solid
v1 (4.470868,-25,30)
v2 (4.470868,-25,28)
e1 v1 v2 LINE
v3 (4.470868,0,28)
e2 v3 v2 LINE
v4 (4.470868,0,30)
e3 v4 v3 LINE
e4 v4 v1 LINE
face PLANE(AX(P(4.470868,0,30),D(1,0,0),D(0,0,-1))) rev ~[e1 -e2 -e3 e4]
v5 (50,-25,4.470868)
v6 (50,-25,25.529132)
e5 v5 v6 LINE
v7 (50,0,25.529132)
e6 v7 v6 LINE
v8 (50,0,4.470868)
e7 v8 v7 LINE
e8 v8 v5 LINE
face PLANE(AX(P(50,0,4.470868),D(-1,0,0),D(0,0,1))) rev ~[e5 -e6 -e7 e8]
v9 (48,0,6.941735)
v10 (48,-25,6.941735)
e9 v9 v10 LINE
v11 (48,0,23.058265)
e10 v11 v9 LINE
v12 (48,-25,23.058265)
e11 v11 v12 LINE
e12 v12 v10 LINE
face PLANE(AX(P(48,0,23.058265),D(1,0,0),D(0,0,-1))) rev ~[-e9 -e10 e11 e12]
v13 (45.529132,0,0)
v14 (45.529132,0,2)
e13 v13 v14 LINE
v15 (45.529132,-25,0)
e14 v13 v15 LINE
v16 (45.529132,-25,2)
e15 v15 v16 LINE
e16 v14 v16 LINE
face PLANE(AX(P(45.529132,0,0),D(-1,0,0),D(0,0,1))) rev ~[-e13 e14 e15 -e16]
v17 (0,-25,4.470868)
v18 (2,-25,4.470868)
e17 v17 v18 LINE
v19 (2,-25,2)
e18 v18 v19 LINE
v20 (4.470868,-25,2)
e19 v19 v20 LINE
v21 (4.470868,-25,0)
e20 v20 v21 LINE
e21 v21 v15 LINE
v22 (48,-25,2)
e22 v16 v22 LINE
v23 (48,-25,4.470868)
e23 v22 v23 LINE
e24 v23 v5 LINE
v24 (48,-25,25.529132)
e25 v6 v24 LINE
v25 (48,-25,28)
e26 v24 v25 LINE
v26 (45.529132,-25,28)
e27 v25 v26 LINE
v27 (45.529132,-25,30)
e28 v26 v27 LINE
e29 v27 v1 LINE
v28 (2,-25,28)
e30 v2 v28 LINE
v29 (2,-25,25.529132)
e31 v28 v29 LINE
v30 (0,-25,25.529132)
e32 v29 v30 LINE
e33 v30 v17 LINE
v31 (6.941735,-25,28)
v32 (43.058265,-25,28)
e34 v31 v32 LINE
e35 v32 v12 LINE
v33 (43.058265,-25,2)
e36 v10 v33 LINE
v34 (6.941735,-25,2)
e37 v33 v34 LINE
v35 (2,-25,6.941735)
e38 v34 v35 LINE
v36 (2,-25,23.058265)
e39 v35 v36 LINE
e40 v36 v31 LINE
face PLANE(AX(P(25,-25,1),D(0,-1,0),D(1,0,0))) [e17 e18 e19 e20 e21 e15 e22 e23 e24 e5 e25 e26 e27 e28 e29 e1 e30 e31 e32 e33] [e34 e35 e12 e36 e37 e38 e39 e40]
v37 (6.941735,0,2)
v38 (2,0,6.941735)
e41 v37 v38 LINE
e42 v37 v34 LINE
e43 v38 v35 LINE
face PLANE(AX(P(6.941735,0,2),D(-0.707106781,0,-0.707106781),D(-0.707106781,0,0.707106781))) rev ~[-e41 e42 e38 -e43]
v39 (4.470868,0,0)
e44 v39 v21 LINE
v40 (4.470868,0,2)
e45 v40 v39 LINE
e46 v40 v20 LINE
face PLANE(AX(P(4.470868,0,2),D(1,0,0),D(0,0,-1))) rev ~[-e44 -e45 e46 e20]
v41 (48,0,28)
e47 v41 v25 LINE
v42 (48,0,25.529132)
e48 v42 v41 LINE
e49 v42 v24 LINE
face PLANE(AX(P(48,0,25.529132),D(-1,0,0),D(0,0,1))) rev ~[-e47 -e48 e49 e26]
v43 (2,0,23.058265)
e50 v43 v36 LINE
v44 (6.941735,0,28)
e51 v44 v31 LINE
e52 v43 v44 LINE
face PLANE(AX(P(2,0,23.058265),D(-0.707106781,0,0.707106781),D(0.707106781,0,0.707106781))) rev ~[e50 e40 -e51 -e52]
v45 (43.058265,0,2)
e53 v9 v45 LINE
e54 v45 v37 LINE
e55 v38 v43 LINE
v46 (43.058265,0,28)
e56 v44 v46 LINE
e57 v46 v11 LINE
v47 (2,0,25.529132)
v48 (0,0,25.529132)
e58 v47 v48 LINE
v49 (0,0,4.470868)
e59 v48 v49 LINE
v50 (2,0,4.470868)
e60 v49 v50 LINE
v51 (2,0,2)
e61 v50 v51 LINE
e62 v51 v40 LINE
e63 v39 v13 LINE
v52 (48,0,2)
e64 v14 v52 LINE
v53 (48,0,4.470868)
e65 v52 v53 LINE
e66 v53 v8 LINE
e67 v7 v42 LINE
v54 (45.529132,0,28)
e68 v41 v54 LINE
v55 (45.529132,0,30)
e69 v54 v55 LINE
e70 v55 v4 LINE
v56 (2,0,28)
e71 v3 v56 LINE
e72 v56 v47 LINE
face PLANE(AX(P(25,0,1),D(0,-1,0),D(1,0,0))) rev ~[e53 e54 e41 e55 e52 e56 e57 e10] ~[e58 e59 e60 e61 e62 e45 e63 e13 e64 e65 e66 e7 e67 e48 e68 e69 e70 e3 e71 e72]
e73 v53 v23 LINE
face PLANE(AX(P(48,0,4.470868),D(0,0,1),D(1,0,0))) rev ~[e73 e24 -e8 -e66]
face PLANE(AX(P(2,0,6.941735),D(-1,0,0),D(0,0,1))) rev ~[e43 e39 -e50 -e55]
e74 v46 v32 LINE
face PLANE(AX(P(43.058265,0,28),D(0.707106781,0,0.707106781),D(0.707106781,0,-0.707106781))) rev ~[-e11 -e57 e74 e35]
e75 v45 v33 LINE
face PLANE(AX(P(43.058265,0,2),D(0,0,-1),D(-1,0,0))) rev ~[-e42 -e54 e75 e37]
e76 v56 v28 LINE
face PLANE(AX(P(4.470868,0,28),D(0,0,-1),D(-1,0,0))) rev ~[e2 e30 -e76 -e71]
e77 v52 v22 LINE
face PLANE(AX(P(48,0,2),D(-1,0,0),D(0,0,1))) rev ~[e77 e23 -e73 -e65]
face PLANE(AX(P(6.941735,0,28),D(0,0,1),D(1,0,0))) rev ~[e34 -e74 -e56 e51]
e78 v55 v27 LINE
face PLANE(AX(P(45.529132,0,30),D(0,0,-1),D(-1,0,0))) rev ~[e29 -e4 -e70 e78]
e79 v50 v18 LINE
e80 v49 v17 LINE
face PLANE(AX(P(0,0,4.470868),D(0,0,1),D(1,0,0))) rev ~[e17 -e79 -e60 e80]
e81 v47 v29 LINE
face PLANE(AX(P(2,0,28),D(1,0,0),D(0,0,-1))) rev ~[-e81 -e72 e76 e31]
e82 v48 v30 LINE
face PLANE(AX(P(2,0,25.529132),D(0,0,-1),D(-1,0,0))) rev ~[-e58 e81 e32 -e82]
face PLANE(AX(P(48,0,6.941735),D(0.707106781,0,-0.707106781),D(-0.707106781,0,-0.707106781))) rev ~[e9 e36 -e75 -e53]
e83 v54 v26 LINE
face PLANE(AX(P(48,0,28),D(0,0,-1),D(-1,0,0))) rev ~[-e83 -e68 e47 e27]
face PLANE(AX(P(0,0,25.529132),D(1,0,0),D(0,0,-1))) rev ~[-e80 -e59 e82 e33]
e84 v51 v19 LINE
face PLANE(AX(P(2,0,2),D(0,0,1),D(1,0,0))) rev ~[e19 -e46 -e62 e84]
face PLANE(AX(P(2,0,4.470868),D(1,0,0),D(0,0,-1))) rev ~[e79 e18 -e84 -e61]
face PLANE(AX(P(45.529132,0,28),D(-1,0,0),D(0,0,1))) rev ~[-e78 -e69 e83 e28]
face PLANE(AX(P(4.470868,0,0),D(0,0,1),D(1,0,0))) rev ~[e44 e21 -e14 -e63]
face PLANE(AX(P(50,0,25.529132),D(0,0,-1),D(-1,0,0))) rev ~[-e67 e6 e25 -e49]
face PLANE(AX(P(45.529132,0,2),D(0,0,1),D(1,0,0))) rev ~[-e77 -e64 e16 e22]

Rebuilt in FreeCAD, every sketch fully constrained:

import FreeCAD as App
import Part
import Sketcher

doc = App.newDocument("Part")
body = doc.addObject("PartDesign::Body", "Body")

sketch1 = body.newObject("Sketcher::SketchObject", "Sketch")
sketch1.AttachmentSupport = (doc.getObject("XZ_Plane"), [""])
sketch1.MapMode = "FlatFace"
sketch1.addGeometry([
    Part.LineSegment(App.Vector(4.5, 2, 0), App.Vector(4.5, 0, 0)),
    Part.LineSegment(App.Vector(4.5, 0, 0), App.Vector(45.5, 0, 0)),
    Part.LineSegment(App.Vector(45.5, 0, 0), App.Vector(45.5, 2, 0)),
    Part.LineSegment(App.Vector(45.5, 2, 0), App.Vector(48, 2, 0)),
    Part.LineSegment(App.Vector(48, 2, 0), App.Vector(48, 4.5, 0)),
    Part.LineSegment(App.Vector(48, 4.5, 0), App.Vector(50, 4.5, 0)),
    Part.LineSegment(App.Vector(50, 4.5, 0), App.Vector(50, 25.5, 0)),
    Part.LineSegment(App.Vector(50, 25.5, 0), App.Vector(48, 25.5, 0)),
    Part.LineSegment(App.Vector(48, 25.5, 0), App.Vector(48, 28, 0)),
    Part.LineSegment(App.Vector(48, 28, 0), App.Vector(45.5, 28, 0)),
    Part.LineSegment(App.Vector(45.5, 28, 0), App.Vector(45.5, 30, 0)),
    Part.LineSegment(App.Vector(45.5, 30, 0), App.Vector(4.5, 30, 0)),
    Part.LineSegment(App.Vector(4.5, 30, 0), App.Vector(4.5, 28, 0)),
    Part.LineSegment(App.Vector(4.5, 28, 0), App.Vector(2, 28, 0)),
    Part.LineSegment(App.Vector(2, 28, 0), App.Vector(2, 25.5, 0)),
    Part.LineSegment(App.Vector(2, 25.5, 0), App.Vector(0, 25.5, 0)),
    Part.LineSegment(App.Vector(0, 25.5, 0), App.Vector(0, 4.5, 0)),
    Part.LineSegment(App.Vector(0, 4.5, 0), App.Vector(2, 4.5, 0)),
    Part.LineSegment(App.Vector(2, 4.5, 0), App.Vector(2, 2, 0)),
    Part.LineSegment(App.Vector(2, 2, 0), App.Vector(4.5, 2, 0)),
    Part.LineSegment(App.Vector(43.1, 28, 0), App.Vector(48, 23.1, 0)),
    Part.LineSegment(App.Vector(48, 23.1, 0), App.Vector(48, 6.9, 0)),
    Part.LineSegment(App.Vector(48, 6.9, 0), App.Vector(43.1, 2, 0)),
    Part.LineSegment(App.Vector(43.1, 2, 0), App.Vector(6.9, 2, 0)),
    Part.LineSegment(App.Vector(6.9, 2, 0), App.Vector(2, 6.9, 0)),
    Part.LineSegment(App.Vector(2, 6.9, 0), App.Vector(2, 23.1, 0)),
    Part.LineSegment(App.Vector(2, 23.1, 0), App.Vector(6.9, 28, 0)),
    Part.LineSegment(App.Vector(6.9, 28, 0), App.Vector(43.1, 28, 0)),
], False)
sketch1.addConstraint([
    Sketcher.Constraint("Coincident", 0, 2, 1, 1),
    Sketcher.Constraint("Coincident", 1, 2, 2, 1),
    Sketcher.Constraint("Coincident", 2, 2, 3, 1),
    Sketcher.Constraint("Coincident", 3, 2, 4, 1),
    Sketcher.Constraint("Coincident", 4, 2, 5, 1),
    Sketcher.Constraint("Coincident", 5, 2, 6, 1),
    Sketcher.Constraint("Coincident", 6, 2, 7, 1),
    Sketcher.Constraint("Coincident", 7, 2, 8, 1),
    Sketcher.Constraint("Coincident", 8, 2, 9, 1),
    Sketcher.Constraint("Coincident", 9, 2, 10, 1),
    Sketcher.Constraint("Coincident", 10, 2, 11, 1),
    Sketcher.Constraint("Coincident", 11, 2, 12, 1),
    Sketcher.Constraint("Coincident", 12, 2, 13, 1),
    Sketcher.Constraint("Coincident", 13, 2, 14, 1),
    Sketcher.Constraint("Coincident", 14, 2, 15, 1),
    Sketcher.Constraint("Coincident", 15, 2, 16, 1),
    Sketcher.Constraint("Coincident", 16, 2, 17, 1),
    Sketcher.Constraint("Coincident", 17, 2, 18, 1),
    Sketcher.Constraint("Coincident", 18, 2, 19, 1),
    Sketcher.Constraint("Coincident", 19, 2, 0, 1),
    Sketcher.Constraint("Coincident", 20, 2, 21, 1),
    Sketcher.Constraint("Coincident", 21, 2, 22, 1),
    Sketcher.Constraint("Coincident", 22, 2, 23, 1),
    Sketcher.Constraint("Coincident", 23, 2, 24, 1),
    Sketcher.Constraint("Coincident", 24, 2, 25, 1),
    Sketcher.Constraint("Coincident", 25, 2, 26, 1),
    Sketcher.Constraint("Coincident", 26, 2, 27, 1),
    Sketcher.Constraint("Coincident", 27, 2, 20, 1),
    Sketcher.Constraint("Vertical", 0),
    Sketcher.Constraint("Horizontal", 1),
    Sketcher.Constraint("Vertical", 2),
    Sketcher.Constraint("Horizontal", 3),
    Sketcher.Constraint("Vertical", 4),
    Sketcher.Constraint("Horizontal", 5),
    Sketcher.Constraint("Vertical", 6),
    Sketcher.Constraint("Horizontal", 7),
    Sketcher.Constraint("Vertical", 8),
    Sketcher.Constraint("Horizontal", 9),
    Sketcher.Constraint("Vertical", 10),
    Sketcher.Constraint("Horizontal", 11),
    Sketcher.Constraint("Vertical", 12),
    Sketcher.Constraint("Horizontal", 13),
    Sketcher.Constraint("Vertical", 14),
    Sketcher.Constraint("Horizontal", 15),
    Sketcher.Constraint("Vertical", 16),
    Sketcher.Constraint("Horizontal", 17),
    Sketcher.Constraint("Vertical", 18),
    Sketcher.Constraint("Horizontal", 19),
    Sketcher.Constraint("Vertical", 21),
    Sketcher.Constraint("Horizontal", 23),
    Sketcher.Constraint("Vertical", 25),
    Sketcher.Constraint("Horizontal", 27),
    Sketcher.Constraint("PointOnObject", 0, 2, -1),
    Sketcher.Constraint("PointOnObject", 15, 2, -2),
    Sketcher.Constraint("Perpendicular", 20, 22),
    Sketcher.Constraint("Perpendicular", 22, 24),
    Sketcher.Constraint("Perpendicular", 24, 26),
    Sketcher.Constraint("Horizontal", 9, 2, 12, 2),
    Sketcher.Constraint("Horizontal", 7, 2, 14, 2),
    Sketcher.Constraint("Horizontal", 5, 2, 16, 2),
    Sketcher.Constraint("Horizontal", 3, 2, 18, 2),
    Sketcher.Constraint("Horizontal", 19, 2, 22, 2),
    Sketcher.Constraint("Horizontal", 21, 2, 24, 2),
    Sketcher.Constraint("Horizontal", 20, 2, 25, 2),
    Sketcher.Constraint("Horizontal", 13, 2, 26, 2),
    Sketcher.Constraint("Vertical", 4, 2, 7, 2),
    Sketcher.Constraint("Vertical", 2, 2, 9, 2),
    Sketcher.Constraint("Vertical", 0, 2, 11, 2),
    Sketcher.Constraint("Vertical", 14, 2, 17, 2),
    Sketcher.Constraint("Vertical", 8, 2, 20, 2),
    Sketcher.Constraint("Vertical", 18, 2, 24, 2),
    Sketcher.Constraint("Vertical", 23, 2, 26, 2),
    Sketcher.Constraint("Vertical", 22, 2, 27, 2),
    Sketcher.Constraint("Equal", 9, 13),
    Sketcher.Constraint("Equal", 7, 15),
    Sketcher.Constraint("Equal", 17, 0),
    Sketcher.Constraint("Equal", 19, 4),
    Sketcher.Constraint("Equal", 4, 8),
    Sketcher.Constraint("Equal", 2, 10),
    Sketcher.Constraint("DistanceX", 5, 1, 5, 2, 2.0),
    Sketcher.Constraint("DistanceX", -1, 1, 3, 2, 48.0),
    Sketcher.Constraint("DistanceY", -1, 1, 8, 2, 28.0),
    Sketcher.Constraint("DistanceX", 3, 1, 3, 2, 2.470868),
    Sketcher.Constraint("DistanceX", 23, 2, 23, 1, 36.11653),
])
pad1 = body.newObject("PartDesign::Pad", "Pad")
pad1.Profile = sketch1
pad1.Length = 25

doc.recompute()
